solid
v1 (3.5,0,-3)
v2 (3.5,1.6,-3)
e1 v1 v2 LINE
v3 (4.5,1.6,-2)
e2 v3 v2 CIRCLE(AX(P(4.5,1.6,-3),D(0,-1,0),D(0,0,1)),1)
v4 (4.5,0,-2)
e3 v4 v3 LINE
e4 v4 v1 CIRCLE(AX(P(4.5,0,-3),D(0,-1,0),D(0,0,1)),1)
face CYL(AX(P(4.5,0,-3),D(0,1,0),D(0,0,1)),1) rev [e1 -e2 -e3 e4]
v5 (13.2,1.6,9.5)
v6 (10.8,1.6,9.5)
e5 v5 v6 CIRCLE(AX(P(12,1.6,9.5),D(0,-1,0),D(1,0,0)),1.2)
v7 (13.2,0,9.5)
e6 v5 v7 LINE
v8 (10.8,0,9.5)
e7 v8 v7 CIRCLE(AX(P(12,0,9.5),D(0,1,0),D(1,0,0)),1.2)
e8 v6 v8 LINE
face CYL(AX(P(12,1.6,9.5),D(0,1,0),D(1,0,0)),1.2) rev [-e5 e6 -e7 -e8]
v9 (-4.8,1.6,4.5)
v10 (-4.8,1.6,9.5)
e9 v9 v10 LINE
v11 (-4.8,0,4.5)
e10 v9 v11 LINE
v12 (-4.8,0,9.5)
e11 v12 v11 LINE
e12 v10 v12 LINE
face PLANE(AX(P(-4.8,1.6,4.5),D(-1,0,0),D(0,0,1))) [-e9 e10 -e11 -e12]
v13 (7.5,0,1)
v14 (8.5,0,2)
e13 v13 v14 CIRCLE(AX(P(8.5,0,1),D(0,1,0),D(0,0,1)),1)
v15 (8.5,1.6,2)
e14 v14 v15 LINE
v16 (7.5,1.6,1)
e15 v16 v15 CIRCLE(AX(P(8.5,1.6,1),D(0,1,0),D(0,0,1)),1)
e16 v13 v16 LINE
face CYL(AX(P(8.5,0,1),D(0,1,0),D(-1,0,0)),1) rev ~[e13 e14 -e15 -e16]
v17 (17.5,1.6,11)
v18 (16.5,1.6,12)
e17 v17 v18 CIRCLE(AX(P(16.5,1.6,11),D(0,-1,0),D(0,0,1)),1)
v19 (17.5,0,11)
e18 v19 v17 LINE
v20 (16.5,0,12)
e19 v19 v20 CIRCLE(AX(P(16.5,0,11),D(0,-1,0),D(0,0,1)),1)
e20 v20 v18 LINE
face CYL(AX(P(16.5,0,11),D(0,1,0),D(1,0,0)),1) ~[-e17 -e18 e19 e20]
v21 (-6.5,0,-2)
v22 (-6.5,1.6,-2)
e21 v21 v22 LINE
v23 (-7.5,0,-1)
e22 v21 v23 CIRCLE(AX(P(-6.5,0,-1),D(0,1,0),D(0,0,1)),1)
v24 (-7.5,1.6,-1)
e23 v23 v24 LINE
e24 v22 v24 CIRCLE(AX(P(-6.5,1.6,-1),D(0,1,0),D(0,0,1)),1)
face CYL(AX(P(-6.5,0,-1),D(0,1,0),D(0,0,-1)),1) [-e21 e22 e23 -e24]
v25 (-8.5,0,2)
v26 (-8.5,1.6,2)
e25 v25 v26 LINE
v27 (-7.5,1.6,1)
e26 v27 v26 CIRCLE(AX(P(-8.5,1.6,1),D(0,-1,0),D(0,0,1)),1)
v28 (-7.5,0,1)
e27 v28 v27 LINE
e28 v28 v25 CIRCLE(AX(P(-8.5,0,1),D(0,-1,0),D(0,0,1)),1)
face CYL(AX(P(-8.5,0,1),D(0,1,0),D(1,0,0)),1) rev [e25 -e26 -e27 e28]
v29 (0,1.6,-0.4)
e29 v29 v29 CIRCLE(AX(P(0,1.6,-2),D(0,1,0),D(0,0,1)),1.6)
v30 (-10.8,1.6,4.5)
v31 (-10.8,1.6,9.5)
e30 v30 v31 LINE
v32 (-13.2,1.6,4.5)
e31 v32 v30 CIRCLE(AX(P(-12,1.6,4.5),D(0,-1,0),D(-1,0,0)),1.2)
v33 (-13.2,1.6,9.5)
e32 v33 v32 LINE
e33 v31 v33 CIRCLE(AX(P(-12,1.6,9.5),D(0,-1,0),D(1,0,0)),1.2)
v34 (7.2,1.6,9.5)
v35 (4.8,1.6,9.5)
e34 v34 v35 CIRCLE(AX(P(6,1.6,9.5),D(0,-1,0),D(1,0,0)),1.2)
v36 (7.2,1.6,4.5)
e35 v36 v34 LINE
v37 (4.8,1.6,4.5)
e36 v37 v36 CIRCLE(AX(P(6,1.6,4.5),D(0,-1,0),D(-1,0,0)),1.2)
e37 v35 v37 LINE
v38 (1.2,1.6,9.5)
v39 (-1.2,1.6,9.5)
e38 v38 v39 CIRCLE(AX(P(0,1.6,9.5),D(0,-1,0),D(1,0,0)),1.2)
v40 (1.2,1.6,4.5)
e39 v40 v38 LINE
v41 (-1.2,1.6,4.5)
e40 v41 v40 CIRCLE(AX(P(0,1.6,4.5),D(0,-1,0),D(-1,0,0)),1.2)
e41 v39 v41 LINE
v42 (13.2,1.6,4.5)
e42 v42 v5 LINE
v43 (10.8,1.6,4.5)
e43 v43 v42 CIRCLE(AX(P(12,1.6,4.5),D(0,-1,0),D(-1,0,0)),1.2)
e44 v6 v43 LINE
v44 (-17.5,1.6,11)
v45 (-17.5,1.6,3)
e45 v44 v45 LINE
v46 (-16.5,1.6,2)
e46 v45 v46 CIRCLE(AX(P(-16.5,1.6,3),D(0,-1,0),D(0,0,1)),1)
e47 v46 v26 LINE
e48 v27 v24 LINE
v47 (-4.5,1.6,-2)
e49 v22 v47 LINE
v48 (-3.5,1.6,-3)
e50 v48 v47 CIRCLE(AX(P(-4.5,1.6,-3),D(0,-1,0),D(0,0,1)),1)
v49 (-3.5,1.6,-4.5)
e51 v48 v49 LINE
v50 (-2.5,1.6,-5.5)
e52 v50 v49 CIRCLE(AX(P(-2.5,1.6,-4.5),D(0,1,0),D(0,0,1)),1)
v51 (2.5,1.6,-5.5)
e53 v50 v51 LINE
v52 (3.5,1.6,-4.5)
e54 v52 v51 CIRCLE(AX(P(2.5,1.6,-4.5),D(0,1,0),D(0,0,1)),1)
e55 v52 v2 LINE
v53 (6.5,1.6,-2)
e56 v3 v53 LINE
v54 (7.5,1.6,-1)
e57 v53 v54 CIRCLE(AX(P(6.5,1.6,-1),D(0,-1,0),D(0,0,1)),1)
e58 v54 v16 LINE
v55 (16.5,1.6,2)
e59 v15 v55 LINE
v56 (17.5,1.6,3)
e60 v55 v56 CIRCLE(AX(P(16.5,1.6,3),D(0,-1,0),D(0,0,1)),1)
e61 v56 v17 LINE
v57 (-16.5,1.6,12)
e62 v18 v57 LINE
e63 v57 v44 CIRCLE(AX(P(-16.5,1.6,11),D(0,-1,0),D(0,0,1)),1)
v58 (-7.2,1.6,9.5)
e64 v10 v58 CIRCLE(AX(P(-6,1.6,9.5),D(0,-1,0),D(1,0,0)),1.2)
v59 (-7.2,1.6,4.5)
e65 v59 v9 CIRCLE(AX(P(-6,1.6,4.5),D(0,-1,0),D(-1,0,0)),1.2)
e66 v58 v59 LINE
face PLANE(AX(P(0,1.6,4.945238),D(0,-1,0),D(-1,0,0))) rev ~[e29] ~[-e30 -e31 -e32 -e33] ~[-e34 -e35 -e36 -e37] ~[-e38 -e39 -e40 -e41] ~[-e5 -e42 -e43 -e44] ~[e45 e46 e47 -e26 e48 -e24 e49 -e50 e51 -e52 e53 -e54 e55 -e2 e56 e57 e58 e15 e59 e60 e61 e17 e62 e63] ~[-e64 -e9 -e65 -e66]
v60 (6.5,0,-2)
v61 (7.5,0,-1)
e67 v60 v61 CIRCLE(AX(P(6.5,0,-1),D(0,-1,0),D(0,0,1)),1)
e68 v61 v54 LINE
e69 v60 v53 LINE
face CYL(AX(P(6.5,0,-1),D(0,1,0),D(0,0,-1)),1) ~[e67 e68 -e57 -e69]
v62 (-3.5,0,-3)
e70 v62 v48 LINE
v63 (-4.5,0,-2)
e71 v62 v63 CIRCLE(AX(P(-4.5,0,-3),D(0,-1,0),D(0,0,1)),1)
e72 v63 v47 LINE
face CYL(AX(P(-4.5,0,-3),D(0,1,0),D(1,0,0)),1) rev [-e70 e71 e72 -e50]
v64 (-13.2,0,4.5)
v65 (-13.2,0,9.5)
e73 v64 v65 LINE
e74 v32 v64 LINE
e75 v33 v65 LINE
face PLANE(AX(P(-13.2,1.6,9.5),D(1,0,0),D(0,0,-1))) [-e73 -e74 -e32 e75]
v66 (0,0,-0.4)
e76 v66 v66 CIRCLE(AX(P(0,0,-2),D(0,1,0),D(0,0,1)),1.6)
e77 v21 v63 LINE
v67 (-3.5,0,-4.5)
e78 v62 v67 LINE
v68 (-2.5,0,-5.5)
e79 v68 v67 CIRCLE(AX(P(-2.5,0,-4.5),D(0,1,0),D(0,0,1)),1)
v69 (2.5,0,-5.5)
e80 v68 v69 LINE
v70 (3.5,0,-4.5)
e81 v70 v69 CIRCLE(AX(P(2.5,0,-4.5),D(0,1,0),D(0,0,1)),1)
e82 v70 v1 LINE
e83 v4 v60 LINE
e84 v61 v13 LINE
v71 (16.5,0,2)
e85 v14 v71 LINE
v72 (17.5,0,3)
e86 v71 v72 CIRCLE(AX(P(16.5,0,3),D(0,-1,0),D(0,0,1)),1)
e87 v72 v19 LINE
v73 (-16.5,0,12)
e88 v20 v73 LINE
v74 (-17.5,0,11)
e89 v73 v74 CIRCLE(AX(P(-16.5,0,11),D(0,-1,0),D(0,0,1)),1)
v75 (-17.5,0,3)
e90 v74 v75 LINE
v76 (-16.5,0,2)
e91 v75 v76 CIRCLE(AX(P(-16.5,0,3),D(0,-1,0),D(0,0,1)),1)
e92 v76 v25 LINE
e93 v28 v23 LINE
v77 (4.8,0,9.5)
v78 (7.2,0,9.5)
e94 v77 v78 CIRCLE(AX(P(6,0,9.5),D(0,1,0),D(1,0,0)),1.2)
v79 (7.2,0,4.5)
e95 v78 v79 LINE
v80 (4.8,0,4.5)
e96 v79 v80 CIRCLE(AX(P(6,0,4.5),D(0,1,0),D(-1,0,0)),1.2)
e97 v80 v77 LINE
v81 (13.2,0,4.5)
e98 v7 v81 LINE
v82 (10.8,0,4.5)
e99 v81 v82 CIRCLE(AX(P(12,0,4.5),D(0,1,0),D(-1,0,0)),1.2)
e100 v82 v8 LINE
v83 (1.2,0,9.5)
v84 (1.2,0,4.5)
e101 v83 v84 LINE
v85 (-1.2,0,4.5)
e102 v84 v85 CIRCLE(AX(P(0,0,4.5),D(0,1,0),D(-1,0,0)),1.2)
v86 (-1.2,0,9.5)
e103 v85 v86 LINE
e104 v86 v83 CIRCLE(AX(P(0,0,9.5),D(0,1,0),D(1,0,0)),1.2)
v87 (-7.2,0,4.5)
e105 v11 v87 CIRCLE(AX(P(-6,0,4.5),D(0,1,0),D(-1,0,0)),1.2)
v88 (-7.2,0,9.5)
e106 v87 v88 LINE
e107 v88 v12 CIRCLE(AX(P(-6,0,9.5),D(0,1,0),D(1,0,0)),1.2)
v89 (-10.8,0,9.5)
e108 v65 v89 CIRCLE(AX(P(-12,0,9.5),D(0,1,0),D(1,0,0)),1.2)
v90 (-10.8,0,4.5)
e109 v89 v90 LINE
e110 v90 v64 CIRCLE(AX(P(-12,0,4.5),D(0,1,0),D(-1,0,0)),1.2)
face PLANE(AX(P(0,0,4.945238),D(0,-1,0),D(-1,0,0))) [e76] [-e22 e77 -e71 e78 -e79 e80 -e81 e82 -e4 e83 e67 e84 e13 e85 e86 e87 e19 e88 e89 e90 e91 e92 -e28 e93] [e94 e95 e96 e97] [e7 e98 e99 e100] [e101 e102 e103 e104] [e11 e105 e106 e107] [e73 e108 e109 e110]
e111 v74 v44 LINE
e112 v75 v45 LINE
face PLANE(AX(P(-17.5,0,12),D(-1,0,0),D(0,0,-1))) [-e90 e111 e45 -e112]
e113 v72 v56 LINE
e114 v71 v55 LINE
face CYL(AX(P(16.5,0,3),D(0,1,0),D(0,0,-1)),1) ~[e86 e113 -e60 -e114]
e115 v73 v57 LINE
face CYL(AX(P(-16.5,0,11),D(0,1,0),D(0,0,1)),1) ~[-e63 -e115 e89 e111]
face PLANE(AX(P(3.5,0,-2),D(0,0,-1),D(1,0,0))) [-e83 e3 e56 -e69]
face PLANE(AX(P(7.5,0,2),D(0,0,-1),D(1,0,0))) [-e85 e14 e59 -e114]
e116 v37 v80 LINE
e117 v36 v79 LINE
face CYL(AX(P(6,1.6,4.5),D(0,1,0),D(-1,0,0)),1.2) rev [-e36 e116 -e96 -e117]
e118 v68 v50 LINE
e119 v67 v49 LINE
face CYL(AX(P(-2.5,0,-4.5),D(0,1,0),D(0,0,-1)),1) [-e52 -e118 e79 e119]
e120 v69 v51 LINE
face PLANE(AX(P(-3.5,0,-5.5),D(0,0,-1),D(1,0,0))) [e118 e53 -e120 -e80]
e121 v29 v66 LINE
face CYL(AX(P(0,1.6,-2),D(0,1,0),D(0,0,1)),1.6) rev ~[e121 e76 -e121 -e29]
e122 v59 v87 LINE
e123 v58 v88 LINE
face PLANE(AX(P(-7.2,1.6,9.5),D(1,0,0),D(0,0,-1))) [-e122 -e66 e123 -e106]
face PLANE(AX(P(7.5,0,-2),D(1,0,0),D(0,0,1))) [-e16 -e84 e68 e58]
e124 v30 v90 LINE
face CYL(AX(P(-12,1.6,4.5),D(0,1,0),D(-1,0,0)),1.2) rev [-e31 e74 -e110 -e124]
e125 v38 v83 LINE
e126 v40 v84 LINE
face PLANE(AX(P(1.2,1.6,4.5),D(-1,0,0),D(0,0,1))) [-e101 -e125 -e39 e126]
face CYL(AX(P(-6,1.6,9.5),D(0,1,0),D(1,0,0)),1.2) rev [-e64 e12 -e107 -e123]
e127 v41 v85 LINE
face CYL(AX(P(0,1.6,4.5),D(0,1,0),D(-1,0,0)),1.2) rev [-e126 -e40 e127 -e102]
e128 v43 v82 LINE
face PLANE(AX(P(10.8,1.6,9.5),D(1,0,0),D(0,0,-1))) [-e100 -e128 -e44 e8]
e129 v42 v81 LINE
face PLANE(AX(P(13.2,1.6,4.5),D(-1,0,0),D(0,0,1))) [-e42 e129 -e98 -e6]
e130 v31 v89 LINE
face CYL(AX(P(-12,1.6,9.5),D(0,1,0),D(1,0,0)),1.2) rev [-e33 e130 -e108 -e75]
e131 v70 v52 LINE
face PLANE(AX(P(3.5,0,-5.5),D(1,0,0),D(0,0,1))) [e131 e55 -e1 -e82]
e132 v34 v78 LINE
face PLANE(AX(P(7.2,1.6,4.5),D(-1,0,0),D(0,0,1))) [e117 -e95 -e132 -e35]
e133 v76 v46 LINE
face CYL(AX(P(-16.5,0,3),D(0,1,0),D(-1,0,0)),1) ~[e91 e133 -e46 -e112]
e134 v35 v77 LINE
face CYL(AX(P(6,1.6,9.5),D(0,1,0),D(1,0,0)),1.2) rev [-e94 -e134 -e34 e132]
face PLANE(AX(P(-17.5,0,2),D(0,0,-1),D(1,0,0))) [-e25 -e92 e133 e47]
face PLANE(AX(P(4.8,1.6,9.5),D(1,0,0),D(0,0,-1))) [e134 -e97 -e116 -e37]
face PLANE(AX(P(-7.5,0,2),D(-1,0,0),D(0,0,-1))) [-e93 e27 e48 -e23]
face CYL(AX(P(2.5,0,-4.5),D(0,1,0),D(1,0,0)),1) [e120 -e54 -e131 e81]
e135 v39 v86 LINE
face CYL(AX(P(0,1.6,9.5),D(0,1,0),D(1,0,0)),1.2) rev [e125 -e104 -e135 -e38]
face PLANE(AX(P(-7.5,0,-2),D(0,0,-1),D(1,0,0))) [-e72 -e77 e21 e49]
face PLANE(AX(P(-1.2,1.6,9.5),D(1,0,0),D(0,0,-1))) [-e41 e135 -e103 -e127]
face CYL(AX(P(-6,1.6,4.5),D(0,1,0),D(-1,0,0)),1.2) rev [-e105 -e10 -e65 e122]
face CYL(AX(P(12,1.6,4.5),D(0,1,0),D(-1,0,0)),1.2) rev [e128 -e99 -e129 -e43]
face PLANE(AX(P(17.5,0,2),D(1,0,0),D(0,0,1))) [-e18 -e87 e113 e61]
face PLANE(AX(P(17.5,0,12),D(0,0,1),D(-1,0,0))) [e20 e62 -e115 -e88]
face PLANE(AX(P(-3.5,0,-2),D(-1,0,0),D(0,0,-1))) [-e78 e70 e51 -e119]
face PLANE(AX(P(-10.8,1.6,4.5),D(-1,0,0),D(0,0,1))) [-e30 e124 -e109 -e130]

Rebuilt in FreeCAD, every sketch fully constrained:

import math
import FreeCAD as App
import Part
import Sketcher

V = App.Vector
Q = App.Units.Quantity


def edges_at(feature, points):
    """Names of the edges that pass closest to the given points."""
    edges = feature.Shape.Edges
    near = lambda p: min(range(len(edges)), key=lambda i: edges[i].distToShape(Part.Vertex(*p))[0])
    return sorted({f"Edge{near(p) + 1}" for p in points})

doc = App.newDocument("Part")
params = doc.addObject("Spreadsheet::Sheet", "Params")
for row, (alias, value) in enumerate([
    ("sketch1_width", "4 mm"),
    ("sketch1_width2", "7 mm"),
    ("sketch1_width3", "10 mm"),
    ("sketch1_height", "3.5 mm"),
    ("pad1_length", "1.6 mm"),
    ("sketch2_diameter", "3.2 mm"),
    ("fillet_radius", "1 mm"),
    ("sketch3_radius", "1.2 mm"),
    ("sketch3_height", "5 mm"),
    ("linearpattern_pitch", "6 mm"),
    ("linearpattern2_pitch", "6 mm"),
], start=1):
    params.set(f"A{row}", alias)
    params.set(f"B{row}", "=" + value)
    params.setAlias(f"B{row}", alias)

body = doc.addObject("PartDesign::Body", "Body")

# Sketch on XZ plane
sketch1 = body.newObject("Sketcher::SketchObject", "Sketch")
sketch1.AttachmentSupport = (doc.getObject("XZ_Plane"), [""])
sketch1.MapMode = "FlatFace"
sketch1.addGeometry([
    Part.LineSegment(V(7.5, -2, 0), V(3.5, -2, 0)),  # 0
    Part.LineSegment(V(3.5, -2, 0), V(3.5, -5.5, 0)),  # 1
    Part.LineSegment(V(3.5, -5.5, 0), V(-3.5, -5.5, 0)),  # 2
    Part.LineSegment(V(-3.5, -5.5, 0), V(-3.5, -2, 0)),  # 3
    Part.LineSegment(V(-3.5, -2, 0), V(-7.5, -2, 0)),  # 4
    Part.LineSegment(V(-7.5, -2, 0), V(-7.5, 2, 0)),  # 5
    Part.LineSegment(V(-7.5, 2, 0), V(-17.5, 2, 0)),  # 6
    Part.LineSegment(V(-17.5, 2, 0), V(-17.5, 12, 0)),  # 7
    Part.LineSegment(V(-17.5, 12, 0), V(17.5, 12, 0)),  # 8
    Part.LineSegment(V(17.5, 12, 0), V(17.5, 2, 0)),  # 9
    Part.LineSegment(V(17.5, 2, 0), V(7.5, 2, 0)),  # 10
    Part.LineSegment(V(7.5, 2, 0), V(7.5, -2, 0)),  # 11
], False)
sketch1.addConstraint([
    Sketcher.Constraint("Coincident", 0, 2, 1, 1),
    Sketcher.Constraint("Coincident", 1, 2, 2, 1),
    Sketcher.Constraint("Coincident", 2, 2, 3, 1),
    Sketcher.Constraint("Coincident", 3, 2, 4, 1),
    Sketcher.Constraint("Coincident", 4, 2, 5, 1),
    Sketcher.Constraint("Coincident", 5, 2, 6, 1),
    Sketcher.Constraint("Coincident", 6, 2, 7, 1),
    Sketcher.Constraint("Coincident", 7, 2, 8, 1),
    Sketcher.Constraint("Coincident", 8, 2, 9, 1),
    Sketcher.Constraint("Coincident", 9, 2, 10, 1),
    Sketcher.Constraint("Coincident", 10, 2, 11, 1),
    Sketcher.Constraint("Coincident", 11, 2, 0, 1),
    Sketcher.Constraint("Horizontal", 0),
    Sketcher.Constraint("Vertical", 1),
    Sketcher.Constraint("Horizontal", 2),
    Sketcher.Constraint("Vertical", 3),
    Sketcher.Constraint("Horizontal", 4),
    Sketcher.Constraint("Vertical", 5),
    Sketcher.Constraint("Horizontal", 6),
    Sketcher.Constraint("Vertical", 7),
    Sketcher.Constraint("Horizontal", 8),
    Sketcher.Constraint("Vertical", 9),
    Sketcher.Constraint("Horizontal", 10),
    Sketcher.Constraint("Vertical", 11),
    Sketcher.Constraint("Symmetric", 4, 2, 10, 2, -1, 1),
    Sketcher.Constraint("Symmetric", 0, 2, 3, 2, -2),
    Sketcher.Constraint("Symmetric", 6, 2, 9, 2, -2),
    Sketcher.Constraint("Equal", 4, 5),
    Sketcher.Constraint("Equal", 10, 7),
    Sketcher.Constraint("DistanceX", 0, 2, 0, 1, Q("4 mm")),
    Sketcher.Constraint("DistanceX", 2, 2, 2, 1, Q("7 mm")),
    Sketcher.Constraint("DistanceX", 6, 2, 6, 1, Q("10 mm")),
    Sketcher.Constraint("DistanceY", 1, 2, 1, 1, Q("3.5 mm")),
])
sketch1.setExpression("Constraints[29]", "Params.sketch1_width")
sketch1.setExpression("Constraints[30]", "Params.sketch1_width2")
sketch1.setExpression("Constraints[31]", "Params.sketch1_width3")
sketch1.setExpression("Constraints[32]", "Params.sketch1_height")
pad1 = body.newObject("PartDesign::Pad", "Pad")
pad1.Profile = sketch1
pad1.setExpression("Length", "Params.pad1_length")
pad1.Reversed = True

# Sketch on XZ plane
sketch2 = body.newObject("Sketcher::SketchObject", "Sketch001")
sketch2.AttachmentSupport = (doc.getObject("XZ_Plane"), [""])
sketch2.MapMode = "FlatFace"
sketch2.AttachmentOffset = App.Placement(V(0, 0, -1.6), App.Rotation())
sketch2.addGeometry(Part.Circle(V(0, -2, 0), V(0, 0, 1), 1.6), False)
sketch2.addConstraint([
    Sketcher.Constraint("PointOnObject", 0, 3, -2),
    Sketcher.Constraint("Diameter", 0, Q("3.2 mm")),
    Sketcher.Constraint("DistanceY", 0, 3, -1, 1, Q("2 mm")),
])
sketch2.setExpression("Constraints[1]", "Params.sketch2_diameter")
pocket1 = body.newObject("PartDesign::Pocket", "Pocket")
pocket1.Profile = sketch2
pocket1.Type = "ThroughAll"
pocket1.Reversed = True
doc.recompute()

fillet = body.newObject("PartDesign::Fillet", "Fillet")
fillet.Base = (pocket1, edges_at(pocket1, [
    (7.5, 0.8, 2),
    (17.5, 0.8, 2),
    (17.5, 0.8, 12),
    (-17.5, 0.8, 12),
    (-17.5, 0.8, 2),
    (-7.5, 0.8, 2),
    (-7.5, 0.8, -2),
    (-3.5, 0.8, -2),
    (-3.5, 0.8, -5.5),
    (3.5, 0.8, -5.5),
    (3.5, 0.8, -2),
    (7.5, 0.8, -2),
]))
fillet.setExpression("Radius", "Params.fillet_radius")

# Sketch on XZ plane
sketch3 = body.newObject("Sketcher::SketchObject", "Sketch002")
sketch3.AttachmentSupport = (doc.getObject("XZ_Plane"), [""])
sketch3.MapMode = "FlatFace"
sketch3.AttachmentOffset = App.Placement(V(0, 0, -1.6), App.Rotation())
sketch3.addGeometry([
    Part.LineSegment(V(-1.2, 4.5, 0), V(-1.2, 9.5, 0)),
    Part.ArcOfCircle(Part.Circle(V(0, 9.5, 0), V(0, 0, 1), 1.2), math.radians(0), math.radians(180)),
    Part.LineSegment(V(1.2, 9.5, 0), V(1.2, 4.5, 0)),
    Part.ArcOfCircle(Part.Circle(V(0, 4.5, 0), V(0, 0, 1), 1.2), math.radians(180), math.radians(360)),
], False)
sketch3.addConstraint([
    Sketcher.Constraint("Tangent", 0, 2, 1, 2),
    Sketcher.Constraint("Tangent", 1, 1, 2, 1),
    Sketcher.Constraint("Tangent", 2, 2, 3, 2),
    Sketcher.Constraint("Tangent", 3, 1, 0, 1),
    Sketcher.Constraint("Vertical", 0),
    Sketcher.Constraint("Vertical", 2),
    Sketcher.Constraint("PointOnObject", 1, 3, -2),
    Sketcher.Constraint("Radius", 1, Q("1.2 mm")),
    Sketcher.Constraint("DistanceY", 0, 1, 0, 2, Q("5 mm")),
    Sketcher.Constraint("DistanceY", -1, 1, 1, 3, Q("9.5 mm")),
])
sketch3.setExpression("Constraints[7]", "Params.sketch3_radius")
sketch3.setExpression("Constraints[8]", "Params.sketch3_height")
pocket2 = body.newObject("PartDesign::Pocket", "Pocket001")
pocket2.Profile = sketch3
pocket2.Type = "ThroughAll"
pocket2.Reversed = True
doc.recompute()

linearpattern = body.newObject("PartDesign::LinearPattern", "LinearPattern")
linearpattern.Originals = [pocket2]
linearpattern.Direction = (doc.getObject("X_Axis"), [""])
linearpattern.Mode = "offset"
linearpattern.setExpression("Offset", "Params.linearpattern_pitch")
linearpattern.Occurrences = 3
body.Tip = linearpattern
doc.recompute()

linearpattern2 = body.newObject("PartDesign::LinearPattern", "LinearPattern001")
linearpattern2.Originals = [pocket2]
linearpattern2.Direction = (doc.getObject("X_Axis"), [""])
linearpattern2.Mode = "offset"
linearpattern2.setExpression("Offset", "Params.linearpattern2_pitch")
linearpattern2.Occurrences = 3
linearpattern2.Reversed = True
body.Tip = linearpattern2

doc.recompute()
